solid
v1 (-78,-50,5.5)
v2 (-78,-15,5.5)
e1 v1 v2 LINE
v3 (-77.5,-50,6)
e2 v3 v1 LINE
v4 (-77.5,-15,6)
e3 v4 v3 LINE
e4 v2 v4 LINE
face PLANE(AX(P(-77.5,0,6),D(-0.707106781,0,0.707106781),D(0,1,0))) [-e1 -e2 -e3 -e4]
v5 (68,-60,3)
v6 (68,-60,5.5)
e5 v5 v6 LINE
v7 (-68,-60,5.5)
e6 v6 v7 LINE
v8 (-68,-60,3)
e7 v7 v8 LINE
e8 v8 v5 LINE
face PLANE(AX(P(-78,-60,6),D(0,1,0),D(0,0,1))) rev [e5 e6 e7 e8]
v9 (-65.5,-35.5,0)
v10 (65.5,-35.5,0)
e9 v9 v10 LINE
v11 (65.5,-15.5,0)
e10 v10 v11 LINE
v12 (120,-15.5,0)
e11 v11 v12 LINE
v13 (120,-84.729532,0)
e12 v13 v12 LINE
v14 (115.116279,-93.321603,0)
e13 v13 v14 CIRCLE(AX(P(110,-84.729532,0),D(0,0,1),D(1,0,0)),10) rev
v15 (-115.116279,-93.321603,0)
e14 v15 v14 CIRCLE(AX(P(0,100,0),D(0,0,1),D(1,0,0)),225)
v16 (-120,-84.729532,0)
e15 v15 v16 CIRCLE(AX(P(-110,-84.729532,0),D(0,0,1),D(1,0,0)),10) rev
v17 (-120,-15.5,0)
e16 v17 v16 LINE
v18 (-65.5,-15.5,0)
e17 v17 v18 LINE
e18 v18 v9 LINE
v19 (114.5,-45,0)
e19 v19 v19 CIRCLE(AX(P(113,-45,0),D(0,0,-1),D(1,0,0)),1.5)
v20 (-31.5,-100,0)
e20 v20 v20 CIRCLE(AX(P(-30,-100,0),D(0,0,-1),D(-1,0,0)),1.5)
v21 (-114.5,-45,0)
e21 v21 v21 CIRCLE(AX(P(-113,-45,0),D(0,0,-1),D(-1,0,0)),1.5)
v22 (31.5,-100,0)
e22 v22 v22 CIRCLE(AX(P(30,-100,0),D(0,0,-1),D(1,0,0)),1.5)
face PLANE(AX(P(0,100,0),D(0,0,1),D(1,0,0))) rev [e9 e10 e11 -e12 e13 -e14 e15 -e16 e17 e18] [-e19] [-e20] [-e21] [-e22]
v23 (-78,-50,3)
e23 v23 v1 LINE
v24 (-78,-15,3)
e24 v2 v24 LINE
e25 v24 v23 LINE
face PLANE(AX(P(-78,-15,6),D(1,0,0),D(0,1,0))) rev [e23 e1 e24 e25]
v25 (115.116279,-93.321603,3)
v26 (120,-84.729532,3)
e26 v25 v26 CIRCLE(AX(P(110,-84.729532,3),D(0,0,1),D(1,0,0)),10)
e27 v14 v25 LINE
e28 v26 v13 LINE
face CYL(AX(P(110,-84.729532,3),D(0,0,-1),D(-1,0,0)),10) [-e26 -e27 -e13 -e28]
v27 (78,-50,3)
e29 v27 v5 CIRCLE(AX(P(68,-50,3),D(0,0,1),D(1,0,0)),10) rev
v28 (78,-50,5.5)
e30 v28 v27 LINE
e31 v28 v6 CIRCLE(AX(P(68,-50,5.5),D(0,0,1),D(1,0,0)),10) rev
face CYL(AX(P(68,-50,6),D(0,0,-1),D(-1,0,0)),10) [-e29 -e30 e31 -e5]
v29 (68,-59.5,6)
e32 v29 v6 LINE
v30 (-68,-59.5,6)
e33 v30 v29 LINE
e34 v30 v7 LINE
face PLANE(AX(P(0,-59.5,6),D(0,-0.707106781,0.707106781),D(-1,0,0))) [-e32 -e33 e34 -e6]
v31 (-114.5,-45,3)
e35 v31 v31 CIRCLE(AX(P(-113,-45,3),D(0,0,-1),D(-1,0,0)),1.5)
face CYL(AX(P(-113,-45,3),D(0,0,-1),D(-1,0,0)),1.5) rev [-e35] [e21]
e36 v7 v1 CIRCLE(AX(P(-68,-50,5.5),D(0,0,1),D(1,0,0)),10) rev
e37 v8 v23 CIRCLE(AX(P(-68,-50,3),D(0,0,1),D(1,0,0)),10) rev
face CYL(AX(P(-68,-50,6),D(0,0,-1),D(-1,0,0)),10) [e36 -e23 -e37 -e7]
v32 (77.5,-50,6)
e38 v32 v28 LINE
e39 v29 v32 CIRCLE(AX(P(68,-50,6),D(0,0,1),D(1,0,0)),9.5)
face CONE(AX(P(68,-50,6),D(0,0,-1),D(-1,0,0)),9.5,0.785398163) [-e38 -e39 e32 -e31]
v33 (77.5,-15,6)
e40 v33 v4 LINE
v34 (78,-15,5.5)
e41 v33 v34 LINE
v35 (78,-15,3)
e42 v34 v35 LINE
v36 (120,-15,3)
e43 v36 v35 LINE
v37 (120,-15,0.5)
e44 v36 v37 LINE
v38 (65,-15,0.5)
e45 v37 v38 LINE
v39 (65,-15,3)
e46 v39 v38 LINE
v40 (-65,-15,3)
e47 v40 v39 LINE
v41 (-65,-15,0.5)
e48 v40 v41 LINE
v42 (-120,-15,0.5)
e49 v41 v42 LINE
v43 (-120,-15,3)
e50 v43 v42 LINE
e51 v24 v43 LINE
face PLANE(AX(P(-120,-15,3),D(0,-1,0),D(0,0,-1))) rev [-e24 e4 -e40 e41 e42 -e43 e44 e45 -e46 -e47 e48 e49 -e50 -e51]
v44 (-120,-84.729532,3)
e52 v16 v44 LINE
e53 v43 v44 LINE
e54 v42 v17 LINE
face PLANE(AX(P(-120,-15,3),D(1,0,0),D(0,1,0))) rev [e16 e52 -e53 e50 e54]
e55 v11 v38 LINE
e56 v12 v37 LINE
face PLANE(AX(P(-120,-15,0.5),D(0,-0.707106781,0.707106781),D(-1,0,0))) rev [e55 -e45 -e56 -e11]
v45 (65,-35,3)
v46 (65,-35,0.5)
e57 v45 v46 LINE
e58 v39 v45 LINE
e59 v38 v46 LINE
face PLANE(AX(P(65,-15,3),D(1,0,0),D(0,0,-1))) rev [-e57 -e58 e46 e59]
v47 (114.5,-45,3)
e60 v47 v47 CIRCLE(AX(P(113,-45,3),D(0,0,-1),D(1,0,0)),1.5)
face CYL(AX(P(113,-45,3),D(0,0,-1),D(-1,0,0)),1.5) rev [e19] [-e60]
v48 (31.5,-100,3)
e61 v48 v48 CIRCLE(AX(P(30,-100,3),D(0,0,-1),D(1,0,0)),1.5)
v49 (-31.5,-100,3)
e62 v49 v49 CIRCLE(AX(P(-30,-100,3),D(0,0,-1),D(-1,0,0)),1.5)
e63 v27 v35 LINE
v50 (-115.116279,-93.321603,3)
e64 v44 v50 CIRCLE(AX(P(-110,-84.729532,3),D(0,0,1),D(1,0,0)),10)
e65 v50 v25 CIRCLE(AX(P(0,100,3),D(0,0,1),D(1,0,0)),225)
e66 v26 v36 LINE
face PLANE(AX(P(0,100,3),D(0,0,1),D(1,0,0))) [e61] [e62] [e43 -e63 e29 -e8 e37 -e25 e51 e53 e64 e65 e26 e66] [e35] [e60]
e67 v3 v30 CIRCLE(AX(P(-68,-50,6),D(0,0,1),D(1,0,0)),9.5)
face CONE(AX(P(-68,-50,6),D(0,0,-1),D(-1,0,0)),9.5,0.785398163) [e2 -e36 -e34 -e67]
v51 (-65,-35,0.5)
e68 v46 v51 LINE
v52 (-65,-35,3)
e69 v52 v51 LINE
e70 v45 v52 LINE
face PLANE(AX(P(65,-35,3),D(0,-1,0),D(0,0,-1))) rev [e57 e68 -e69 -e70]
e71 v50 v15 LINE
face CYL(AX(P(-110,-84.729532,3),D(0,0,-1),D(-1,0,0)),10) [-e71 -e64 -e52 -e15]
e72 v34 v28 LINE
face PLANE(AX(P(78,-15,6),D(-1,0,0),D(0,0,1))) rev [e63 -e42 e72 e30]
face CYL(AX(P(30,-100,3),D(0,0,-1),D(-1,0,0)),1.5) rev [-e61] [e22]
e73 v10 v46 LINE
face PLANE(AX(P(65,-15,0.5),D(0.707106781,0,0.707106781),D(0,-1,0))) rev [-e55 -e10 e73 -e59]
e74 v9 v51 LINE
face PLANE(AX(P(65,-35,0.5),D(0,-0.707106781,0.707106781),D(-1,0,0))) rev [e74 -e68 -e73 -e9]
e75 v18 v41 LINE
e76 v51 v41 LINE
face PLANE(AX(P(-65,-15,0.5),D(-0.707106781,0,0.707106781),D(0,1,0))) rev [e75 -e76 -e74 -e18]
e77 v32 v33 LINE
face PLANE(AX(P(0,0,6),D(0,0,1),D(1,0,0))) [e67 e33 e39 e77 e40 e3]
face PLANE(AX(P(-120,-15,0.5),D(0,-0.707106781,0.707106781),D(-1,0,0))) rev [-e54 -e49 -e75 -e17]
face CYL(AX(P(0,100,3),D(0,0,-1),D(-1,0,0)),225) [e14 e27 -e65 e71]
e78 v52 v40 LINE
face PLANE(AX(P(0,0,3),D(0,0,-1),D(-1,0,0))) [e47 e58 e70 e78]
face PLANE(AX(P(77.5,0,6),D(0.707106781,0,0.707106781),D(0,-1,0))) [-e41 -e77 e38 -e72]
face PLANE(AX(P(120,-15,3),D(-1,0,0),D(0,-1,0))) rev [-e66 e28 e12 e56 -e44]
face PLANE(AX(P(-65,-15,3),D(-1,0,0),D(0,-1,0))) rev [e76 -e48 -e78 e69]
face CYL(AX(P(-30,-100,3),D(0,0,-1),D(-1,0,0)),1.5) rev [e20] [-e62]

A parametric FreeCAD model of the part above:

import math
import FreeCAD as App
import Part
import Sketcher


def edges_at(feature, points):
    """Names of the edges that pass closest to the given points."""
    edges = feature.Shape.Edges
    near = lambda p: min(range(len(edges)), key=lambda i: edges[i].distToShape(Part.Vertex(*p))[0])
    return sorted({f"Edge{near(p) + 1}" for p in points})

doc = App.newDocument("Part")
params = doc.addObject("Spreadsheet::Sheet", "Params")
for row, (alias, value) in enumerate([
    ("sketch1_radius", "225 mm"),
    ("sketch1_width", "240 mm"),
    ("pad1_length", "3 mm"),
    ("sketch2_width", "156 mm"),
    ("sketch2_height", "45 mm"),
    ("pad2_length", "3 mm"),
    ("sketch3_diameter", "3 mm"),
    ("pocket1_length", "3 mm"),
    ("sketch4_width", "130 mm"),
    ("sketch4_height", "20 mm"),
    ("pocket2_length", "3 mm"),
    ("fillet_radius", "10 mm"),
    ("chamfer_size", "0.5 mm"),
    ("fillet2_radius", "10 mm"),
    ("chamfer2_size", "0.5 mm"),
], start=1):
    params.set(f"A{row}", alias)
    params.set(f"B{row}", "=" + value)
    params.setAlias(f"B{row}", alias)

body = doc.addObject("PartDesign::Body", "Body")

# Sketch on XY plane
sketch1 = body.newObject("Sketcher::SketchObject", "Sketch")
sketch1.AttachmentSupport = (doc.getObject("XY_Plane"), [""])
sketch1.MapMode = "FlatFace"
sketch1.addGeometry(Part.LineSegment(App.Vector(120, -15, 0), App.Vector(-120, -15, 0)), False)
sketch1.addGeometry(Part.LineSegment(App.Vector(-120, -15, 0), App.Vector(-120, -90, 0)), False)
sketch1.addGeometry(Part.ArcOfCircle(Part.Circle(App.Vector(0, 100, 0), App.Vector(0, 0, 1), 225), math.radians(-122), math.radians(-58)), False)
sketch1.addGeometry(Part.LineSegment(App.Vector(120, -90, 0), App.Vector(120, -15, 0)), False)
sketch1.addConstraint(Sketcher.Constraint("Coincident", 0, 2, 1, 1))
sketch1.addConstraint(Sketcher.Constraint("Coincident", 1, 2, 2, 1))
sketch1.addConstraint(Sketcher.Constraint("Coincident", 2, 2, 3, 1))
sketch1.addConstraint(Sketcher.Constraint("Coincident", 3, 2, 0, 1))
sketch1.addConstraint(Sketcher.Constraint("Horizontal", 0))
sketch1.addConstraint(Sketcher.Constraint("Vertical", 1))
sketch1.addConstraint(Sketcher.Constraint("Vertical", 3))
sketch1.addConstraint(Sketcher.Constraint("Symmetric", 1, 2, 2, 2, -2))
sketch1.addConstraint(Sketcher.Constraint("Radius", 2, 225.0))
sketch1.addConstraint(Sketcher.Constraint("DistanceX", 0, 2, 0, 1, 240.0))
sketch1.addConstraint(Sketcher.Constraint("DistanceY", -1, 1, 2, 3, 100.0))
sketch1.addConstraint(Sketcher.Constraint("DistanceY", 0, 2, -1, 1, 15.0))
sketch1.setExpression("Constraints[8]", "Params.sketch1_radius")
sketch1.setExpression("Constraints[9]", "Params.sketch1_width")
pad1 = body.newObject("PartDesign::Pad", "Pad")
pad1.Profile = sketch1
pad1.setExpression("Length", "Params.pad1_length")

# Sketch on XY plane
sketch2 = body.newObject("Sketcher::SketchObject", "Sketch001")
sketch2.AttachmentSupport = (doc.getObject("XY_Plane"), [""])
sketch2.MapMode = "FlatFace"
sketch2.AttachmentOffset = App.Placement(App.Vector(0, 0, 3), App.Rotation())
sketch2.addGeometry(Part.LineSegment(App.Vector(-78, -15, 0), App.Vector(-78, -60, 0)), False)
sketch2.addGeometry(Part.LineSegment(App.Vector(-78, -60, 0), App.Vector(78, -60, 0)), False)
sketch2.addGeometry(Part.LineSegment(App.Vector(78, -60, 0), App.Vector(78, -15, 0)), False)
sketch2.addGeometry(Part.LineSegment(App.Vector(78, -15, 0), App.Vector(-78, -15, 0)), False)
sketch2.addConstraint(Sketcher.Constraint("Coincident", 0, 2, 1, 1))
sketch2.addConstraint(Sketcher.Constraint("Coincident", 1, 2, 2, 1))
sketch2.addConstraint(Sketcher.Constraint("Coincident", 2, 2, 3, 1))
sketch2.addConstraint(Sketcher.Constraint("Coincident", 3, 2, 0, 1))
sketch2.addConstraint(Sketcher.Constraint("Vertical", 0))
sketch2.addConstraint(Sketcher.Constraint("Horizontal", 1))
sketch2.addConstraint(Sketcher.Constraint("Vertical", 2))
sketch2.addConstraint(Sketcher.Constraint("Horizontal", 3))
sketch2.addConstraint(Sketcher.Constraint("DistanceX", 1, 1, 1, 2, 156.0))
sketch2.addConstraint(Sketcher.Constraint("DistanceY", 0, 2, 0, 1, 45.0))
sketch2.addConstraint(Sketcher.Constraint("DistanceX", 0, 2, -1, 1, 78.0))
sketch2.addConstraint(Sketcher.Constraint("DistanceY", 0, 2, -1, 1, 60.0))
sketch2.setExpression("Constraints[8]", "Params.sketch2_width")
sketch2.setExpression("Constraints[9]", "Params.sketch2_height")
pad2 = body.newObject("PartDesign::Pad", "Pad001")
pad2.Profile = sketch2
pad2.setExpression("Length", "Params.pad2_length")

# Sketch on XY plane
sketch3 = body.newObject("Sketcher::SketchObject", "Sketch002")
sketch3.AttachmentSupport = (doc.getObject("XY_Plane"), [""])
sketch3.MapMode = "FlatFace"
sketch3.addGeometry(Part.Circle(App.Vector(-30, -100, 0), App.Vector(0, 0, 1), 1.5), False)
sketch3.addGeometry(Part.Circle(App.Vector(-113, -45, 0), App.Vector(0, 0, 1), 1.5), False)
sketch3.addGeometry(Part.Circle(App.Vector(113, -45, 0), App.Vector(0, 0, 1), 1.5), False)
sketch3.addGeometry(Part.Circle(App.Vector(30, -100, 0), App.Vector(0, 0, 1), 1.5), False)
sketch3.addConstraint(Sketcher.Constraint("Equal", 0, 1))
sketch3.addConstraint(Sketcher.Constraint("Equal", 1, 2))
sketch3.addConstraint(Sketcher.Constraint("Equal", 2, 3))
sketch3.addConstraint(Sketcher.Constraint("Symmetric", 1, 3, 2, 3, -2))
sketch3.addConstraint(Sketcher.Constraint("Symmetric", 0, 3, 3, 3, -2))
sketch3.addConstraint(Sketcher.Constraint("Diameter", 0, 3.0))
sketch3.addConstraint(Sketcher.Constraint("DistanceX", 0, 3, -1, 1, 30.0))
sketch3.addConstraint(Sketcher.Constraint("DistanceY", 0, 3, -1, 1, 100.0))
sketch3.addConstraint(Sketcher.Constraint("DistanceX", 1, 3, -1, 1, 113.0))
sketch3.addConstraint(Sketcher.Constraint("DistanceY", 1, 3, -1, 1, 45.0))
sketch3.setExpression("Constraints[5]", "Params.sketch3_diameter")
pocket1 = body.newObject("PartDesign::Pocket", "Pocket")
pocket1.Profile = sketch3
pocket1.setExpression("Length", "Params.pocket1_length")
pocket1.Reversed = True

# Sketch on XY plane
sketch4 = body.newObject("Sketcher::SketchObject", "Sketch003")
sketch4.AttachmentSupport = (doc.getObject("XY_Plane"), [""])
sketch4.MapMode = "FlatFace"
sketch4.addGeometry(Part.LineSegment(App.Vector(65, -15, 0), App.Vector(65, -35, 0)), False)
sketch4.addGeometry(Part.LineSegment(App.Vector(65, -35, 0), App.Vector(-65, -35, 0)), False)
sketch4.addGeometry(Part.LineSegment(App.Vector(-65, -35, 0), App.Vector(-65, -15, 0)), False)
sketch4.addGeometry(Part.LineSegment(App.Vector(-65, -15, 0), App.Vector(65, -15, 0)), False)
sketch4.addConstraint(Sketcher.Constraint("Coincident", 0, 2, 1, 1))
sketch4.addConstraint(Sketcher.Constraint("Coincident", 1, 2, 2, 1))
sketch4.addConstraint(Sketcher.Constraint("Coincident", 2, 2, 3, 1))
sketch4.addConstraint(Sketcher.Constraint("Coincident", 3, 2, 0, 1))
sketch4.addConstraint(Sketcher.Constraint("Vertical", 0))
sketch4.addConstraint(Sketcher.Constraint("Horizontal", 1))
sketch4.addConstraint(Sketcher.Constraint("Vertical", 2))
sketch4.addConstraint(Sketcher.Constraint("Horizontal", 3))
sketch4.addConstraint(Sketcher.Constraint("DistanceX", 1, 2, 1, 1, 130.0))
sketch4.addConstraint(Sketcher.Constraint("DistanceY", 0, 2, 0, 1, 20.0))
sketch4.addConstraint(Sketcher.Constraint("DistanceX", -1, 1, 0, 2, 65.0))
sketch4.addConstraint(Sketcher.Constraint("DistanceY", 0, 2, -1, 1, 35.0))
sketch4.setExpression("Constraints[8]", "Params.sketch4_width")
sketch4.setExpression("Constraints[9]", "Params.sketch4_height")
pocket2 = body.newObject("PartDesign::Pocket", "Pocket001")
pocket2.Profile = sketch4
pocket2.setExpression("Length", "Params.pocket2_length")
pocket2.Reversed = True
doc.recompute()

fillet = body.newObject("PartDesign::Fillet", "Fillet")
fillet.Base = (pocket2, edges_at(pocket2, [(120, -90.329, 1.5), (-120, -90.329, 1.5)]))
fillet.setExpression("Radius", "Params.fillet_radius")
doc.recompute()

chamfer = body.newObject("PartDesign::Chamfer", "Chamfer")
chamfer.Base = (fillet, edges_at(fillet, [
    (-92.5, -15, 0),
    (92.5, -15, 0),
    (65, -25, 0),
    (0, -35, 0),
    (-65, -25, 0),
]))
chamfer.setExpression("Size", "Params.chamfer_size")
doc.recompute()

fillet2 = body.newObject("PartDesign::Fillet", "Fillet001")
fillet2.Base = (chamfer, edges_at(chamfer, [(-78, -60, 4.5), (78, -60, 4.5)]))
fillet2.setExpression("Radius", "Params.fillet2_radius")
doc.recompute()

chamfer2 = body.newObject("PartDesign::Chamfer", "Chamfer001")
chamfer2.Base = (fillet2, edges_at(fillet2, [
    (-75.071, -57.071, 6),
    (-78, -32.5, 6),
    (0, -60, 6),
    (78, -32.5, 6),
    (75.071, -57.071, 6),
]))
chamfer2.setExpression("Size", "Params.chamfer2_size")

doc.recompute()
